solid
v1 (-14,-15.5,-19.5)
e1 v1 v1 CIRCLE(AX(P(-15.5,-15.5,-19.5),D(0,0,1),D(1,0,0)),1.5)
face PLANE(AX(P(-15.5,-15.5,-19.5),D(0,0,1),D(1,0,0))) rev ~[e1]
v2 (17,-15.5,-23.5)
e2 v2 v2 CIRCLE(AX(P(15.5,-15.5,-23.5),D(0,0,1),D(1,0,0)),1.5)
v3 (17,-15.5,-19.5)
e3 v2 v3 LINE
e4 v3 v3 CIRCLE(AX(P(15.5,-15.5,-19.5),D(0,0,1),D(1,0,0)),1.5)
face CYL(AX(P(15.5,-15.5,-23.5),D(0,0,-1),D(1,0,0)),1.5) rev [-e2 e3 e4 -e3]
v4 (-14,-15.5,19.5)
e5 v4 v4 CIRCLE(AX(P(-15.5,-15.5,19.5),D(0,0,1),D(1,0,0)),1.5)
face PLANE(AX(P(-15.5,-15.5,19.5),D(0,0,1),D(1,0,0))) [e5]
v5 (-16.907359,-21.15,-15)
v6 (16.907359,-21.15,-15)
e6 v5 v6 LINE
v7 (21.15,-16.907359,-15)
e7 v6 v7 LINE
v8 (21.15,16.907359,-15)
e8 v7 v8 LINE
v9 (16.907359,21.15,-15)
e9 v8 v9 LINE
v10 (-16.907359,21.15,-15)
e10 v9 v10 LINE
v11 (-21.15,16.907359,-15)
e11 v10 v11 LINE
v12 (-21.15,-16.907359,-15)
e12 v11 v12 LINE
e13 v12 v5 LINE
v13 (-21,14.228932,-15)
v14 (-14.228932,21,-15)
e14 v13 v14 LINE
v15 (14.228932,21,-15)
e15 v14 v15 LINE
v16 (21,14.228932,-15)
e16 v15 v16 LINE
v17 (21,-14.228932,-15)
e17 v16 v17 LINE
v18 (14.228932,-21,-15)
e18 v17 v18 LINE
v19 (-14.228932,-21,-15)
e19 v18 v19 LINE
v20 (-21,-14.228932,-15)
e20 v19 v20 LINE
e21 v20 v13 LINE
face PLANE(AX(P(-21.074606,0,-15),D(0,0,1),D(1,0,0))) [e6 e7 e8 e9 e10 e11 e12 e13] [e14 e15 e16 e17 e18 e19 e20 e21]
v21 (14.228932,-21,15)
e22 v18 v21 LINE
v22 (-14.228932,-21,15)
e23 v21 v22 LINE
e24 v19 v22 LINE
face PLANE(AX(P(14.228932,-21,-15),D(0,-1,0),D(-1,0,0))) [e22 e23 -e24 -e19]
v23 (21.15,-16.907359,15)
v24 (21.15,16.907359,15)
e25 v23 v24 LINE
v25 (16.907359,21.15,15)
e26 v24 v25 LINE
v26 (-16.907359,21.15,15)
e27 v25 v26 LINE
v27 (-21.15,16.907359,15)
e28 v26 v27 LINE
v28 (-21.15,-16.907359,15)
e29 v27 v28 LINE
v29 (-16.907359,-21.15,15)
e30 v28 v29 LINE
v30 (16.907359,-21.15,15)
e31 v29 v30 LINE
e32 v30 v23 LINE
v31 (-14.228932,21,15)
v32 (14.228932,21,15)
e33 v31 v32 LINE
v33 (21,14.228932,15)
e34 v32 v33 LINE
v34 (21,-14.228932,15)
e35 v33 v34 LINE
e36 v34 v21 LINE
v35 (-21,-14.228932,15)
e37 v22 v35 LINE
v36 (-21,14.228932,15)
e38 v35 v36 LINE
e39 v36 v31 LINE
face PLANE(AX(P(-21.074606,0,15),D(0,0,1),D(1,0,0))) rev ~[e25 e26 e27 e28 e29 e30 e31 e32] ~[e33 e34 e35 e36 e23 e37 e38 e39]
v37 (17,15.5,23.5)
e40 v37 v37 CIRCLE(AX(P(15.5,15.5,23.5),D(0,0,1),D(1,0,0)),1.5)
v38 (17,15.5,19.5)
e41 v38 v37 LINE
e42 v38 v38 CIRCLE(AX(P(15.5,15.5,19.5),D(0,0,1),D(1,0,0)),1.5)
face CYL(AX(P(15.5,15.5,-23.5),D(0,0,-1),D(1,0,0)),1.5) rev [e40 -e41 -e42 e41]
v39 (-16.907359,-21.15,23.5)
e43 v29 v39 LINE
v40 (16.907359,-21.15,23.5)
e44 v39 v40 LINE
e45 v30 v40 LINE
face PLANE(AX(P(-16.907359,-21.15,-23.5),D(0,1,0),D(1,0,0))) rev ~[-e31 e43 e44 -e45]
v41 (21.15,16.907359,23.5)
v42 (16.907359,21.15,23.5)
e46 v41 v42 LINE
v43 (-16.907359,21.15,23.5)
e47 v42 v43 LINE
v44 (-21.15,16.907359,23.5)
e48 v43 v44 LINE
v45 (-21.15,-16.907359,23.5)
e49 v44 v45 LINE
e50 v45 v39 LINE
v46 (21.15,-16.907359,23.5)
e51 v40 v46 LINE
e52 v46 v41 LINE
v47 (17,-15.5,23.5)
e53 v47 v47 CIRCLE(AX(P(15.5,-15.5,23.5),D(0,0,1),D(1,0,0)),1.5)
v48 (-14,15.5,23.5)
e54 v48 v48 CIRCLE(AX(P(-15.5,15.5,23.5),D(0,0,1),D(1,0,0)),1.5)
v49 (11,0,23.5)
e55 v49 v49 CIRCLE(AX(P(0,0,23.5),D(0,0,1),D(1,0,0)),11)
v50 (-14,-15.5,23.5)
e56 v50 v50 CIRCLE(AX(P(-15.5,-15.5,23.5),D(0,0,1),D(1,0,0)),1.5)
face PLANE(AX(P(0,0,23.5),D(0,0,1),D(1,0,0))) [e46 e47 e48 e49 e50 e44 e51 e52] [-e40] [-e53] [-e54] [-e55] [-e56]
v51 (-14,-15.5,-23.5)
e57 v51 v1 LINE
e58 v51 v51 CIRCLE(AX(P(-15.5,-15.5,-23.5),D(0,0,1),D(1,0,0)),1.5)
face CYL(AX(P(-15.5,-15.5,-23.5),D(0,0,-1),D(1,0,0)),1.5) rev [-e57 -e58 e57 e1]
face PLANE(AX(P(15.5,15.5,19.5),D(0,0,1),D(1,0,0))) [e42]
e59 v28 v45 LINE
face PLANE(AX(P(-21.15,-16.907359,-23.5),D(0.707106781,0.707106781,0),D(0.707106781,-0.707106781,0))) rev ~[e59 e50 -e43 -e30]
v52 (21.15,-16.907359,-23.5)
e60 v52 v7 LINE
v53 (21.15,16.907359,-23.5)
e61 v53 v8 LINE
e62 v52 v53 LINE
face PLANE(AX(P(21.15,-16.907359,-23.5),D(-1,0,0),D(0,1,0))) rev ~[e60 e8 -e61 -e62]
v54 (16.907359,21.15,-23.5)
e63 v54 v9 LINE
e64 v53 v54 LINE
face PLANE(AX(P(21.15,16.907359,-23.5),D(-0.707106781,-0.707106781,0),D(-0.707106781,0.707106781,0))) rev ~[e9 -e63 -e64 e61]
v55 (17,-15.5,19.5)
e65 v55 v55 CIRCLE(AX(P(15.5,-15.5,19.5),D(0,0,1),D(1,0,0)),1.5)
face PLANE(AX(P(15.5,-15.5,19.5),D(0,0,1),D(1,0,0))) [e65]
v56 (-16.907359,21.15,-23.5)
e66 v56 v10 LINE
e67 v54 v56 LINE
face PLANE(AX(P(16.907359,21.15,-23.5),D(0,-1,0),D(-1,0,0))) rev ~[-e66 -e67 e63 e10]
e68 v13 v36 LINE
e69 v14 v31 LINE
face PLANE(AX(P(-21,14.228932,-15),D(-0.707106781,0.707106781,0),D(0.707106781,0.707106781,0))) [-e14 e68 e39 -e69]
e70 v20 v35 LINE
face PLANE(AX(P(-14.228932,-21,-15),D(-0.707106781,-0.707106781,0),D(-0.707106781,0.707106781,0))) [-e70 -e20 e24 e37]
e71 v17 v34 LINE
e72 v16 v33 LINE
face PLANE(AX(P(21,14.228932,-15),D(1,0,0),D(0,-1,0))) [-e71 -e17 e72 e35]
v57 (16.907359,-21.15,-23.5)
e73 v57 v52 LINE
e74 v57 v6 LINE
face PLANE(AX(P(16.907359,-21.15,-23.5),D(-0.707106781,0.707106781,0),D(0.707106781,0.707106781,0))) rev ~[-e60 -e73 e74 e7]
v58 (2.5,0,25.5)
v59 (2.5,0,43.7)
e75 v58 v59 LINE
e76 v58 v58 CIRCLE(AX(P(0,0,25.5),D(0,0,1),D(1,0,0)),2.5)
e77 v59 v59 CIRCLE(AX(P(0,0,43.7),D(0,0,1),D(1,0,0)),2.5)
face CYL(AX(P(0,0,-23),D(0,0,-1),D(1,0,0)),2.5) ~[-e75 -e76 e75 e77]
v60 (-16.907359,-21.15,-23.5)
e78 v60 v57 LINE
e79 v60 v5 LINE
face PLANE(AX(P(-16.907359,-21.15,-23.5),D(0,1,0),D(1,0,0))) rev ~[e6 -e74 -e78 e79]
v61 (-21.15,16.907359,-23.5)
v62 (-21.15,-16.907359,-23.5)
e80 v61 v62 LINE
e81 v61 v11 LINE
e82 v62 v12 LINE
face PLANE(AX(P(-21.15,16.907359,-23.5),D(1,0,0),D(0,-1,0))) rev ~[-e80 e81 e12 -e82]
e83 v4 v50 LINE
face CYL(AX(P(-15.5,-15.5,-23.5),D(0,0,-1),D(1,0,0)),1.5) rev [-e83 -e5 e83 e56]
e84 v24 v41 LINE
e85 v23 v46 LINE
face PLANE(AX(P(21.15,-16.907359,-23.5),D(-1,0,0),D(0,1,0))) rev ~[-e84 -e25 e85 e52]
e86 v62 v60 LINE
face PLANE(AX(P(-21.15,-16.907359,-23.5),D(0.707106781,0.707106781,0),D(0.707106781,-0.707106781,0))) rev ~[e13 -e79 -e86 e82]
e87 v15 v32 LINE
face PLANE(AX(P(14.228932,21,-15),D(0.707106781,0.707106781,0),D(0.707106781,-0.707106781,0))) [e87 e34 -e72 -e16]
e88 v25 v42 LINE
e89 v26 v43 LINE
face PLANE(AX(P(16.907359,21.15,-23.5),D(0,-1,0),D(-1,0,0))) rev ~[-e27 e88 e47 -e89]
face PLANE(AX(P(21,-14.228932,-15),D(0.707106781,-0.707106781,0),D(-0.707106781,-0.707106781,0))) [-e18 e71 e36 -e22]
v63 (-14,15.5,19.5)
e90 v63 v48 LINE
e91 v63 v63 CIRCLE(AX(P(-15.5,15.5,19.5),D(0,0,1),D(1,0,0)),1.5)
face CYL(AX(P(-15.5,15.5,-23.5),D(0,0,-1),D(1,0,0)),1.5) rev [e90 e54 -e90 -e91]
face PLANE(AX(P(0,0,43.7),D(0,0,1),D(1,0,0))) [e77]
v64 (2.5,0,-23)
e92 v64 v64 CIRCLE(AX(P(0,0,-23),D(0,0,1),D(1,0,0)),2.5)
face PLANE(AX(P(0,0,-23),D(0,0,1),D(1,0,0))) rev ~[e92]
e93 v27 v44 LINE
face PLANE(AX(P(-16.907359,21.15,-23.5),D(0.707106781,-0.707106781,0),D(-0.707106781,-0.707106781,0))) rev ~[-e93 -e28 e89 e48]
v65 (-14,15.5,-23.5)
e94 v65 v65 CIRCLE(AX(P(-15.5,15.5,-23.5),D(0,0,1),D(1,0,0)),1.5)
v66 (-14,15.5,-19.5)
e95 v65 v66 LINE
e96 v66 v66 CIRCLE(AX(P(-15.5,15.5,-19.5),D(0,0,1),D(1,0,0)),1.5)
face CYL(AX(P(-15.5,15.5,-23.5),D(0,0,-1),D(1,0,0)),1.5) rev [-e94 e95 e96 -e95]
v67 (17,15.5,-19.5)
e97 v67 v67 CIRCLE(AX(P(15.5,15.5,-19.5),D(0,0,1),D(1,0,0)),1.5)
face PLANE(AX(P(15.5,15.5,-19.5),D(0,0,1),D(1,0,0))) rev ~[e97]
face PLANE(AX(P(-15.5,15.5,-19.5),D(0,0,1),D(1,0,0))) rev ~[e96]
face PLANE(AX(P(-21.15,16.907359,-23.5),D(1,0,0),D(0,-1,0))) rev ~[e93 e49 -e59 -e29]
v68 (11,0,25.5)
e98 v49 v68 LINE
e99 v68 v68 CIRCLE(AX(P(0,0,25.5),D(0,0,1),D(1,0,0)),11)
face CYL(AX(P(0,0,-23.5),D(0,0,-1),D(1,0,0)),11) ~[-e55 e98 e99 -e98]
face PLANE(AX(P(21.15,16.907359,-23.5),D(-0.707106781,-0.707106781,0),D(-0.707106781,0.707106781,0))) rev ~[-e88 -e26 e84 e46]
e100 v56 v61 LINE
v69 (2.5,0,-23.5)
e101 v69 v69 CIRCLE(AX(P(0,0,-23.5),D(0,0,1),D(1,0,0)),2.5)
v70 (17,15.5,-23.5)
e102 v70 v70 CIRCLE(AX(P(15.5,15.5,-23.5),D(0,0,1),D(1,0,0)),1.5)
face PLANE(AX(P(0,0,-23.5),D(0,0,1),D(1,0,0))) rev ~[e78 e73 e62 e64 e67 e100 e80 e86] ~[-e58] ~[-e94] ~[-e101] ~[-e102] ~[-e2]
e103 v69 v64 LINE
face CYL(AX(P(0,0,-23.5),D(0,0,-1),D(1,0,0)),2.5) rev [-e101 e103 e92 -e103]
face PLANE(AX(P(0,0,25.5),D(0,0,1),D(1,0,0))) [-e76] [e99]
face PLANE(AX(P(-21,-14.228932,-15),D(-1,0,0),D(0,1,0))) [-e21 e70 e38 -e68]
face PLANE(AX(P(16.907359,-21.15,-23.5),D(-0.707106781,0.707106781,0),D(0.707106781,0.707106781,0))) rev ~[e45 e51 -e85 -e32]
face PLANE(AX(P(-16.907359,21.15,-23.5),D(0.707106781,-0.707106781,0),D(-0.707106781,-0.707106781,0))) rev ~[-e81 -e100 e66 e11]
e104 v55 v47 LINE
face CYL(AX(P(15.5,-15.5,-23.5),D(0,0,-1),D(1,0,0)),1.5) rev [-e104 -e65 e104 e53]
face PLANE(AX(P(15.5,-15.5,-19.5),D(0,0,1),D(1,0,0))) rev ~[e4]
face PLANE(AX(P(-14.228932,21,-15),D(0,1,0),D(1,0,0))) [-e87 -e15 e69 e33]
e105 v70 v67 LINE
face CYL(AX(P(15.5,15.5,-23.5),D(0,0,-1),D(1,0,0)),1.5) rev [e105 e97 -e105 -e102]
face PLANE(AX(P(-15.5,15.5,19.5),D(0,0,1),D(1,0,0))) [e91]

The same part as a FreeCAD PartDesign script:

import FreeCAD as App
import Part
import Sketcher

V = App.Vector

doc = App.newDocument("Part")
body = doc.addObject("PartDesign::Body", "Body")

sketch1 = body.newObject("Sketcher::SketchObject", "Sketch")
sketch1.AttachmentSupport = (doc.getObject("XY_Plane"), [""])
sketch1.MapMode = "FlatFace"
sketch1.addGeometry([
    Part.LineSegment(V(-16.907359, 21.15, 0), V(-21.15, 16.907359, 0)),
    Part.LineSegment(V(-21.15, 16.907359, 0), V(-21.15, -16.907359, 0)),
    Part.LineSegment(V(-21.15, -16.907359, 0), V(-16.907359, -21.15, 0)),
    Part.LineSegment(V(-16.907359, -21.15, 0), V(16.907359, -21.15, 0)),
    Part.LineSegment(V(16.907359, -21.15, 0), V(21.15, -16.907359, 0)),
    Part.LineSegment(V(21.15, -16.907359, 0), V(21.15, 16.907359, 0)),
    Part.LineSegment(V(21.15, 16.907359, 0), V(16.907359, 21.15, 0)),
    Part.LineSegment(V(16.907359, 21.15, 0), V(-16.907359, 21.15, 0)),
    Part.Circle(V(-15.5, -15.5, 0), V(0, 0, 1), 1.5),
    Part.Circle(V(15.5, -15.5, 0), V(0, 0, 1), 1.5),
    Part.Circle(V(-15.5, 15.5, 0), V(0, 0, 1), 1.5),
    Part.Circle(V(0, 0, 0), V(0, 0, 1), 11),
    Part.Circle(V(15.5, 15.5, 0), V(0, 0, 1), 1.5),
], False)
sketch1.addConstraint([
    Sketcher.Constraint("Coincident", 0, 2, 1, 1),
    Sketcher.Constraint("Coincident", 1, 2, 2, 1),
    Sketcher.Constraint("Coincident", 2, 2, 3, 1),
    Sketcher.Constraint("Coincident", 3, 2, 4, 1),
    Sketcher.Constraint("Coincident", 4, 2, 5, 1),
    Sketcher.Constraint("Coincident", 5, 2, 6, 1),
    Sketcher.Constraint("Coincident", 6, 2, 7, 1),
    Sketcher.Constraint("Coincident", 7, 2, 0, 1),
    Sketcher.Constraint("Vertical", 1),
    Sketcher.Constraint("Horizontal", 3),
    Sketcher.Constraint("Vertical", 5),
    Sketcher.Constraint("Horizontal", 7),
    Sketcher.Constraint("Coincident", 11, 3, -1, 1),
    Sketcher.Constraint("Equal", 8, 9),
    Sketcher.Constraint("Equal", 9, 10),
    Sketcher.Constraint("Equal", 10, 12),
    Sketcher.Constraint("Symmetric", 9, 3, 10, 3, -1, 1),
    Sketcher.Constraint("Symmetric", 8, 3, 12, 3, -1, 1),
    Sketcher.Constraint("Symmetric", 0, 2, 4, 2, -1, 1),
    Sketcher.Constraint("Symmetric", 2, 2, 6, 2, -1, 1),
    Sketcher.Constraint("Symmetric", 8, 3, 9, 3, -2),
    Sketcher.Constraint("Perpendicular", 0, 2),
    Sketcher.Constraint("Perpendicular", 2, 4),
    Sketcher.Constraint("Perpendicular", 4, 6),
    Sketcher.Constraint("Horizontal", 1, 2, 4, 2),
    Sketcher.Constraint("Vertical", 3, 2, 6, 2),
    Sketcher.Constraint("Equal", 7, 1),
    Sketcher.Constraint("Diameter", 8, 3.0),
    Sketcher.Constraint("Diameter", 11, 22.0),
    Sketcher.Constraint("Distance", 0, 6.0),
    Sketcher.Constraint("DistanceX", 8, 3, 9, 3, 31.0),
    Sketcher.Constraint("DistanceY", 8, 3, 10, 3, 31.0),
    Sketcher.Constraint("DistanceX", 0, 2, -1, 1, 21.15),
])
pad1 = body.newObject("PartDesign::Pad", "Pad")
pad1.Profile = sketch1
pad1.Type = "TwoLengths"
pad1.Length = 23.5
pad1.Length2 = 23.5

sketch2 = body.newObject("Sketcher::SketchObject", "Sketch001")
sketch2.AttachmentSupport = (doc.getObject("XY_Plane"), [""])
sketch2.MapMode = "FlatFace"
sketch2.addGeometry([
    Part.LineSegment(V(-21.15, -16.907359, 0), V(-16.907359, -21.15, 0)),
    Part.LineSegment(V(-16.907359, -21.15, 0), V(16.907359, -21.15, 0)),
    Part.LineSegment(V(16.907359, -21.15, 0), V(21.15, -16.907359, 0)),
    Part.LineSegment(V(21.15, -16.907359, 0), V(21.15, 16.907359, 0)),
    Part.LineSegment(V(21.15, 16.907359, 0), V(16.907359, 21.15, 0)),
    Part.LineSegment(V(16.907359, 21.15, 0), V(-16.907359, 21.15, 0)),
    Part.LineSegment(V(-16.907359, 21.15, 0), V(-21.15, 16.907359, 0)),
    Part.LineSegment(V(-21.15, 16.907359, 0), V(-21.15, -16.907359, 0)),
    Part.LineSegment(V(14.228932, -21, 0), V(-14.228932, -21, 0)),
    Part.LineSegment(V(-14.228932, -21, 0), V(-21, -14.228932, 0)),
    Part.LineSegment(V(-21, -14.228932, 0), V(-21, 14.228932, 0)),
    Part.LineSegment(V(-21, 14.228932, 0), V(-14.228932, 21, 0)),
    Part.LineSegment(V(-14.228932, 21, 0), V(14.228932, 21, 0)),
    Part.LineSegment(V(14.228932, 21, 0), V(21, 14.228932, 0)),
    Part.LineSegment(V(21, 14.228932, 0), V(21, -14.228932, 0)),
    Part.LineSegment(V(21, -14.228932, 0), V(14.228932, -21, 0)),
], False)
sketch2.addConstraint([
    Sketcher.Constraint("Coincident", 0, 2, 1, 1),
    Sketcher.Constraint("Coincident", 1, 2, 2, 1),
    Sketcher.Constraint("Coincident", 2, 2, 3, 1),
    Sketcher.Constraint("Coincident", 3, 2, 4, 1),
    Sketcher.Constraint("Coincident", 4, 2, 5, 1),
    Sketcher.Constraint("Coincident", 5, 2, 6, 1),
    Sketcher.Constraint("Coincident", 6, 2, 7, 1),
    Sketcher.Constraint("Coincident", 7, 2, 0, 1),
    Sketcher.Constraint("Coincident", 8, 2, 9, 1),
    Sketcher.Constraint("Coincident", 9, 2, 10, 1),
    Sketcher.Constraint("Coincident", 10, 2, 11, 1),
    Sketcher.Constraint("Coincident", 11, 2, 12, 1),
    Sketcher.Constraint("Coincident", 12, 2, 13, 1),
    Sketcher.Constraint("Coincident", 13, 2, 14, 1),
    Sketcher.Constraint("Coincident", 14, 2, 15, 1),
    Sketcher.Constraint("Coincident", 15, 2, 8, 1),
    Sketcher.Constraint("Horizontal", 1),
    Sketcher.Constraint("Vertical", 3),
    Sketcher.Constraint("Horizontal", 5),
    Sketcher.Constraint("Vertical", 7),
    Sketcher.Constraint("Horizontal", 8),
    Sketcher.Constraint("Vertical", 10),
    Sketcher.Constraint("Horizontal", 12),
    Sketcher.Constraint("Vertical", 14),
    Sketcher.Constraint("Symmetric", 0, 2, 4, 2, -1, 1),
    Sketcher.Constraint("Symmetric", 2, 2, 6, 2, -1, 1),
    Sketcher.Constraint("Symmetric", 8, 2, 12, 2, -1, 1),
    Sketcher.Constraint("Symmetric", 9, 2, 13, 2, -1, 1),
    Sketcher.Constraint("Perpendicular", 0, 2),
    Sketcher.Constraint("Perpendicular", 2, 4),
    Sketcher.Constraint("Perpendicular", 4, 6),
    Sketcher.Constraint("Perpendicular", 6, 9),
    Sketcher.Constraint("Perpendicular", 9, 11),
    Sketcher.Constraint("Perpendicular", 13, 15),
    Sketcher.Constraint("Horizontal", 3, 2, 6, 2),
    Sketcher.Constraint("Horizontal", 10, 2, 13, 2),
    Sketcher.Constraint("Horizontal", 9, 2, 14, 2),
    Sketcher.Constraint("Vertical", 1, 2, 4, 2),
    Sketcher.Constraint("Equal", 5, 3),
    Sketcher.Constraint("Equal", 12, 10),
    Sketcher.Constraint("Distance", 0, 6.0),
    Sketcher.Constraint("DistanceY", 8, 2, -1, 1, 21.0),
    Sketcher.Constraint("DistanceY", 1, 2, 4, 2, 42.3),
    Sketcher.Constraint("DistanceX", 8, 2, 8, 1, 28.457864),
])
pocket1 = body.newObject("PartDesign::Pocket", "Pocket")
pocket1.Profile = sketch2
pocket1.Type = "TwoLengths"
pocket1.Length = 15
pocket1.Length2 = 15
pocket1.Reversed = True

sketch3 = body.newObject("Sketcher::SketchObject", "Sketch002")
sketch3.AttachmentSupport = (doc.getObject("XY_Plane"), [""])
sketch3.MapMode = "FlatFace"
sketch3.addGeometry([
    Part.Circle(V(0, 0, 0), V(0, 0, 1), 11),
    Part.Circle(V(0, 0, 0), V(0, 0, 1), 2.5),
], False)
sketch3.addConstraint([
    Sketcher.Constraint("Coincident", 0, 3, -1, 1),
    Sketcher.Constraint("Coincident", 1, 3, -1, 1),
    Sketcher.Constraint("Diameter", 0, 22.0),
    Sketcher.Constraint("Diameter", 1, 5.0),
])
pad2 = body.newObject("PartDesign::Pad", "Pad001")
pad2.Profile = sketch3
pad2.Type = "TwoLengths"
pad2.Length = 25.5
pad2.Length2 = 23.5

sketch4 = body.newObject("Sketcher::SketchObject", "Sketch003")
sketch4.AttachmentSupport = (doc.getObject("XY_Plane"), [""])
sketch4.MapMode = "FlatFace"
sketch4.addGeometry(Part.Circle(V(0, 0, 0), V(0, 0, 1), 2.5), False)
sketch4.addConstraint([
    Sketcher.Constraint("Coincident", 0, 3, -1, 1),
    Sketcher.Constraint("Diameter", 0, 5.0),
])
pad3 = body.newObject("PartDesign::Pad", "Pad002")
pad3.Profile = sketch4
pad3.Type = "TwoLengths"
pad3.Length = 43.7
pad3.Length2 = 23

sketch5 = body.newObject("Sketcher::SketchObject", "Sketch004")
sketch5.AttachmentSupport = (doc.getObject("XY_Plane"), [""])
sketch5.MapMode = "FlatFace"
sketch5.addGeometry([
    Part.Circle(V(-15.5, -15.5, 0), V(0, 0, 1), 1.5),
    Part.Circle(V(-15.5, 15.5, 0), V(0, 0, 1), 1.5),
    Part.Circle(V(15.5, 15.5, 0), V(0, 0, 1), 1.5),
    Part.Circle(V(15.5, -15.5, 0), V(0, 0, 1), 1.5),
], False)
sketch5.addConstraint([
    Sketcher.Constraint("Equal", 0, 1),
    Sketcher.Constraint("Equal", 1, 2),
    Sketcher.Constraint("Equal", 2, 3),
    Sketcher.Constraint("Symmetric", 0, 3, 2, 3, -1, 1),
    Sketcher.Constraint("Symmetric", 1, 3, 3, 3, -1, 1),
    Sketcher.Constraint("Symmetric", 1, 3, 2, 3, -2),
    Sketcher.Constraint("Diameter", 0, 3.0),
    Sketcher.Constraint("DistanceY", 0, 3, 1, 3, 31.0),
    Sketcher.Constraint("DistanceX", 1, 3, 2, 3, 31.0),
])
pad4 = body.newObject("PartDesign::Pad", "Pad003")
pad4.Profile = sketch5
pad4.Type = "TwoLengths"
pad4.Length = 19.5
pad4.Length2 = 19.5

doc.recompute()
